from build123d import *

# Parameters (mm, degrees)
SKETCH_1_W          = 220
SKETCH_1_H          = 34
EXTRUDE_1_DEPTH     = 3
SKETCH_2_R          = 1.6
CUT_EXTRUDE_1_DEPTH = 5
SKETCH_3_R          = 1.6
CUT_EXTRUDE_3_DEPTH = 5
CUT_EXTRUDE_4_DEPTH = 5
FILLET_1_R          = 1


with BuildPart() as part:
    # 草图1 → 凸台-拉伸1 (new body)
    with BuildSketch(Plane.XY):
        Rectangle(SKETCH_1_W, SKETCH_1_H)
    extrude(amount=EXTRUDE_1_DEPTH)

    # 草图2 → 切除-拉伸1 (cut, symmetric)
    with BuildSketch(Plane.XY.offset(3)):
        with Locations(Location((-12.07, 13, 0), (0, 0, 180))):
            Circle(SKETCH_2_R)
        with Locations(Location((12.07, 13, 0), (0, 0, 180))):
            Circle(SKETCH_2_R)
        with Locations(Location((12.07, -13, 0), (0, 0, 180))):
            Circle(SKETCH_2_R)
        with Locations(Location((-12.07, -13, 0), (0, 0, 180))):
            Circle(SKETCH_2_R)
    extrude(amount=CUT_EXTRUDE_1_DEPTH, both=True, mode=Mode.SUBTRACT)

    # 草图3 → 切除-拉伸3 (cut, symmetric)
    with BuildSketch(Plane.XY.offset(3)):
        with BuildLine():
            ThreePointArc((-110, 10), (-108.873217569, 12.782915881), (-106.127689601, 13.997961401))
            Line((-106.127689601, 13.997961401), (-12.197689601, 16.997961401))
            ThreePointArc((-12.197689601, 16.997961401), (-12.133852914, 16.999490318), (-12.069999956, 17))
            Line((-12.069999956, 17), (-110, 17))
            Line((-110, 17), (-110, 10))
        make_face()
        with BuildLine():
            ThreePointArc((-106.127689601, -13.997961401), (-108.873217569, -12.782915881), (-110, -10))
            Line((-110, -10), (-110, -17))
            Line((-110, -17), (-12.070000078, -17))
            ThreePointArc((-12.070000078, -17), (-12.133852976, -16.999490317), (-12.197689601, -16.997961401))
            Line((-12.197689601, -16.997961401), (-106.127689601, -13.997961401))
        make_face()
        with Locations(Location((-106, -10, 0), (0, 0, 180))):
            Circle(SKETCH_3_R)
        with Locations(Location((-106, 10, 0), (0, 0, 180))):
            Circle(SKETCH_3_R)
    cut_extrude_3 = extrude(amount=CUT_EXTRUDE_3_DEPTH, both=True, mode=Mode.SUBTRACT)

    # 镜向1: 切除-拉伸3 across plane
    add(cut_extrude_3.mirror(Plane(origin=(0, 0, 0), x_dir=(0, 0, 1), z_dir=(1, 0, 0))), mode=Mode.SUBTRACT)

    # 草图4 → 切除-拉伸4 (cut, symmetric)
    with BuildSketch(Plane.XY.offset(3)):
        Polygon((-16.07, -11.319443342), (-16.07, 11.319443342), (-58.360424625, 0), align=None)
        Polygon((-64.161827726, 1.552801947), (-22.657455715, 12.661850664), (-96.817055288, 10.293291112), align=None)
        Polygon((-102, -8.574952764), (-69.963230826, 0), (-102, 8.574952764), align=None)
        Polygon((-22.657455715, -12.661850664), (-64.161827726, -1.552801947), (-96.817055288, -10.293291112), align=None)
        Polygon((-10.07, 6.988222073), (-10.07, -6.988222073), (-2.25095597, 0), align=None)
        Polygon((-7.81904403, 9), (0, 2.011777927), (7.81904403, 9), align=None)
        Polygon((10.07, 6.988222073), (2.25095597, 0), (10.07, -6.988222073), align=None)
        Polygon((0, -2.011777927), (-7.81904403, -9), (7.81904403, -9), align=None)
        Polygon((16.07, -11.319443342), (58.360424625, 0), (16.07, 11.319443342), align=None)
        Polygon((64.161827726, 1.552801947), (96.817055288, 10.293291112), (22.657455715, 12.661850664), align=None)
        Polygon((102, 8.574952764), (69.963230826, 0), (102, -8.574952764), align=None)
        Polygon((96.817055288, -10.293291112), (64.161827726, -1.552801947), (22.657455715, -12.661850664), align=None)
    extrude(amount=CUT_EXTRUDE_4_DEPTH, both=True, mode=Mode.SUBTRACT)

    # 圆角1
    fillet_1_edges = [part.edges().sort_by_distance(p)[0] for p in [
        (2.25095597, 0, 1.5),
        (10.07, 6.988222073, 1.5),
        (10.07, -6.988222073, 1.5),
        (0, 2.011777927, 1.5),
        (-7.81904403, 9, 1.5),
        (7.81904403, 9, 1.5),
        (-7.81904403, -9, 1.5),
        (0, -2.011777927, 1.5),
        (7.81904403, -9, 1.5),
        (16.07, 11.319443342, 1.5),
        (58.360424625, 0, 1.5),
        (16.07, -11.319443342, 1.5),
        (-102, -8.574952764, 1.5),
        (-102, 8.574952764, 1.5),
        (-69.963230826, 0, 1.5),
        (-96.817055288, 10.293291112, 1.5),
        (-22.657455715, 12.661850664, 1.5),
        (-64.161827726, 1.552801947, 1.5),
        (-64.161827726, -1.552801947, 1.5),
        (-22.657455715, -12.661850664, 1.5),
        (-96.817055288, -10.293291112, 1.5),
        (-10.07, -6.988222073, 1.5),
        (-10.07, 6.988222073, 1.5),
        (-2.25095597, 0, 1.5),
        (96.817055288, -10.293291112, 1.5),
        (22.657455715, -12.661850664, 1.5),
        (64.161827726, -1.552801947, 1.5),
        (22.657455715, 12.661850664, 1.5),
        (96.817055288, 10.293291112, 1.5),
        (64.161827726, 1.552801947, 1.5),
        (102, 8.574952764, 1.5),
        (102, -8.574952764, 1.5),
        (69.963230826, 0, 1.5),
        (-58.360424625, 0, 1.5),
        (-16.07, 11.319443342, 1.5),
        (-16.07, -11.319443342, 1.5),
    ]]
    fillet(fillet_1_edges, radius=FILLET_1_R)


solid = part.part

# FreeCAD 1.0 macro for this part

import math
import FreeCAD as App
import Part
import Sketcher


def edges_at(feature, points):
    """Names of the edges that pass closest to the given points."""
    edges = feature.Shape.Edges
    near = lambda p: min(range(len(edges)), key=lambda i: edges[i].distToShape(Part.Vertex(*p))[0])
    return sorted({f"Edge{near(p) + 1}" for p in points})

doc = App.newDocument("Part")
params = doc.addObject("Spreadsheet::Sheet", "Params")
for row, (alias, value) in enumerate([
    ("sketch1_width", "220 mm"),
    ("sketch1_height", "34 mm"),
    ("pad1_length", "3 mm"),
    ("sketch2_diameter", "3.2 mm"),
    ("pocket1_length", "10 mm"),
    ("sketch3_radius", "4 mm"),
    ("sketch3_diameter", "3.2 mm"),
    ("sketch3_height", "7 mm"),
    ("sketch3_width", "97.93 mm"),
    ("pocket2_length", "10 mm"),
    ("pocket3_length", "10 mm"),
    ("fillet_radius", "1 mm"),
], start=1):
    params.set(f"A{row}", alias)
    params.set(f"B{row}", "=" + value)
    params.setAlias(f"B{row}", alias)

body = doc.addObject("PartDesign::Body", "Body")

# Sketch on XY plane
sketch1 = doc.addObject("Sketcher::SketchObject", "Sketch")
body.addObject(sketch1)
sketch1.AttachmentSupport = (doc.XY_Plane, [""])
sketch1.MapMode = "FlatFace"
sketch1.addGeometry([
    Part.LineSegment(App.Vector(-110, 17, 0), App.Vector(-110, -17, 0)),
    Part.LineSegment(App.Vector(-110, -17, 0), App.Vector(110, -17, 0)),
    Part.LineSegment(App.Vector(110, -17, 0), App.Vector(110, 17, 0)),
    Part.LineSegment(App.Vector(110, 17, 0), App.Vector(-110, 17, 0)),
], False)
sketch1.addConstraint([
    Sketcher.Constraint("Coincident", 0, 2, 1, 1),
    Sketcher.Constraint("Coincident", 1, 2, 2, 1),
    Sketcher.Constraint("Coincident", 2, 2, 3, 1),
    Sketcher.Constraint("Coincident", 3, 2, 0, 1),
    Sketcher.Constraint("Vertical", 0),
    Sketcher.Constraint("Horizontal", 1),
    Sketcher.Constraint("Vertical", 2),
    Sketcher.Constraint("Horizontal", 3),
    Sketcher.Constraint("Symmetric", 0, 2, 2, 2, -1, 1),
    Sketcher.Constraint("DistanceX", 1, 1, 1, 2, 220.0),
    Sketcher.Constraint("DistanceY", 0, 2, 0, 1, 34.0),
])
sketch1.setExpression("Constraints[9]", "Params.sketch1_width")
sketch1.setExpression("Constraints[10]", "Params.sketch1_height")
pad1 = doc.addObject("PartDesign::Pad", "Pad")
body.addObject(pad1)
pad1.Profile = sketch1
pad1.setExpression("Length", "Params.pad1_length")

# Sketch on XY plane
sketch2 = doc.addObject("Sketcher::SketchObject", "Sketch001")
body.addObject(sketch2)
sketch2.AttachmentSupport = (doc.XY_Plane, [""])
sketch2.MapMode = "FlatFace"
sketch2.AttachmentOffset = App.Placement(App.Vector(0, 0, 3), App.Rotation())
sketch2.addGeometry([
    Part.Circle(App.Vector(-12.07, 13, 0), App.Vector(0, 0, 1), 1.6),
    Part.Circle(App.Vector(12.07, 13, 0), App.Vector(0, 0, 1), 1.6),
    Part.Circle(App.Vector(12.07, -13, 0), App.Vector(0, 0, 1), 1.6),
    Part.Circle(App.Vector(-12.07, -13, 0), App.Vector(0, 0, 1), 1.6),
], False)
sketch2.addConstraint([
    Sketcher.Constraint("Equal", 0, 1),
    Sketcher.Constraint("Equal", 1, 2),
    Sketcher.Constraint("Equal", 2, 3),
    Sketcher.Constraint("Symmetric", 0, 3, 2, 3, -1, 1),
    Sketcher.Constraint("Symmetric", 1, 3, 3, 3, -1, 1),
    Sketcher.Constraint("Symmetric", 0, 3, 1, 3, -2),
    Sketcher.Constraint("Diameter", 0, 3.2),
    Sketcher.Constraint("DistanceY", -1, 1, 0, 3, 13.0),
    Sketcher.Constraint("DistanceX", 0, 3, -1, 1, 12.07),
])
sketch2.setExpression("Constraints[6]", "Params.sketch2_diameter")
pocket1 = doc.addObject("PartDesign::Pocket", "Pocket")
body.addObject(pocket1)
pocket1.Profile = sketch2
pocket1.setExpression("Length", "Params.pocket1_length")
pocket1.Midplane = True

# Sketch on XY plane
sketch3 = doc.addObject("Sketcher::SketchObject", "Sketch002")
body.addObject(sketch3)
sketch3.AttachmentSupport = (doc.XY_Plane, [""])
sketch3.MapMode = "FlatFace"
sketch3.AttachmentOffset = App.Placement(App.Vector(0, 0, 3), App.Rotation())
sketch3.addGeometry([
    Part.ArcOfCircle(Part.Circle(App.Vector(-106, 10, 0), App.Vector(0, 0, 1), 4), math.radians(91.82933), math.radians(180)),  # 0
    Part.LineSegment(App.Vector(-106.12769, 13.997961, 0), App.Vector(-12.19769, 16.997961, 0)),  # 1
    Part.ArcOfCircle(Part.Circle(App.Vector(-12.07, 12.999999, 0), App.Vector(0, 0, 1), 4.000001), math.radians(90), math.radians(91.82933)),  # 2
    Part.LineSegment(App.Vector(-12.07, 17, 0), App.Vector(-110, 17, 0)),  # 3
    Part.LineSegment(App.Vector(-110, 17, 0), App.Vector(-110, 10, 0)),  # 4
    Part.ArcOfCircle(Part.Circle(App.Vector(-106, -10, 0), App.Vector(0, 0, 1), 4), math.radians(180), math.radians(268.17067)),  # 5
    Part.LineSegment(App.Vector(-110, -10, 0), App.Vector(-110, -17, 0)),  # 6
    Part.LineSegment(App.Vector(-110, -17, 0), App.Vector(-12.07, -17, 0)),  # 7
    Part.ArcOfCircle(Part.Circle(App.Vector(-12.07, -12.999999, 0), App.Vector(0, 0, 1), 4.000001), math.radians(-91.82933), math.radians(-90.000001)),  # 8
    Part.LineSegment(App.Vector(-12.19769, -16.997961, 0), App.Vector(-106.12769, -13.997961, 0)),  # 9
    Part.Circle(App.Vector(-106, -10, 0), App.Vector(0, 0, 1), 1.6),  # 10
    Part.Circle(App.Vector(-106, 10, 0), App.Vector(0, 0, 1), 1.6),  # 11
], False)
sketch3.addConstraint([
    Sketcher.Constraint("Tangent", 0, 1, 1, 1),
    Sketcher.Constraint("Tangent", 1, 2, 2, 2),
    Sketcher.Constraint("Tangent", 2, 1, 3, 1),
    Sketcher.Constraint("Coincident", 3, 2, 4, 1),
    Sketcher.Constraint("Tangent", 4, 2, 0, 2),
    Sketcher.Constraint("Tangent", 5, 1, 6, 1),
    Sketcher.Constraint("Coincident", 6, 2, 7, 1),
    Sketcher.Constraint("Tangent", 7, 2, 8, 2),
    Sketcher.Constraint("Tangent", 8, 1, 9, 1),
    Sketcher.Constraint("Tangent", 9, 2, 5, 2),
    Sketcher.Constraint("Horizontal", 3),
    Sketcher.Constraint("Vertical", 4),
    Sketcher.Constraint("Vertical", 6),
    Sketcher.Constraint("Horizontal", 7),
    Sketcher.Constraint("Coincident", 10, 3, 5, 3),
    Sketcher.Constraint("Coincident", 11, 3, 0, 3),
    Sketcher.Constraint("Equal", 0, 2),
    Sketcher.Constraint("Equal", 2, 5),
    Sketcher.Constraint("Equal", 5, 8),
    Sketcher.Constraint("Equal", 10, 11),
    Sketcher.Constraint("Symmetric", 0, 3, 5, 3, -1),
    Sketcher.Constraint("Symmetric", 2, 3, 8, 3, -1),
    Sketcher.Constraint("Radius", 0, 4.0),
    Sketcher.Constraint("Diameter", 10, 3.2),
    Sketcher.Constraint("DistanceY", 4, 2, 4, 1, 7.0),
    Sketcher.Constraint("DistanceX", 0, 3, -1, 1, 106.0),
    Sketcher.Constraint("DistanceY", -1, 1, 0, 3, 10.0),
    Sketcher.Constraint("DistanceX", 3, 2, 3, 1, 97.93),
])
sketch3.setExpression("Constraints[22]", "Params.sketch3_radius")
sketch3.setExpression("Constraints[23]", "Params.sketch3_diameter")
sketch3.setExpression("Constraints[24]", "Params.sketch3_height")
sketch3.setExpression("Constraints[27]", "Params.sketch3_width")
pocket2 = doc.addObject("PartDesign::Pocket", "Pocket001")
body.addObject(pocket2)
pocket2.Profile = sketch3
pocket2.setExpression("Length", "Params.pocket2_length")
pocket2.Midplane = True
doc.recompute()

mirrored = doc.addObject("PartDesign::Mirrored", "Mirrored")
body.addObject(mirrored)
mirrored.Originals = [pocket2]
mirrored.MirrorPlane = (doc.YZ_Plane, [""])
body.Tip = mirrored

# Sketch on XY plane
sketch4 = doc.addObject("Sketcher::SketchObject", "Sketch003")
body.addObject(sketch4)
sketch4.AttachmentSupport = (doc.XY_Plane, [""])
sketch4.MapMode = "FlatFace"
sketch4.AttachmentOffset = App.Placement(App.Vector(0, 0, 3), App.Rotation())
sketch4.addGeometry([
    Part.LineSegment(App.Vector(-16.07, -11.319443, 0), App.Vector(-16.07, 11.319443, 0)),  # 0
    Part.LineSegment(App.Vector(-16.07, 11.319443, 0), App.Vector(-58.360425, 0, 0)),  # 1
    Part.LineSegment(App.Vector(-58.360425, 0, 0), App.Vector(-16.07, -11.319443, 0)),  # 2
    Part.LineSegment(App.Vector(-64.161828, 1.552802, 0), App.Vector(-22.657456, 12.661851, 0)),  # 3
    Part.LineSegment(App.Vector(-22.657456, 12.661851, 0), App.Vector(-96.817055, 10.293291, 0)),  # 4
    Part.LineSegment(App.Vector(-96.817055, 10.293291, 0), App.Vector(-64.161828, 1.552802, 0)),  # 5
    Part.LineSegment(App.Vector(-102, -8.574953, 0), App.Vector(-69.963231, 0, 0)),  # 6
    Part.LineSegment(App.Vector(-69.963231, 0, 0), App.Vector(-102, 8.574953, 0)),  # 7
    Part.LineSegment(App.Vector(-102, 8.574953, 0), App.Vector(-102, -8.574953, 0)),  # 8
    Part.LineSegment(App.Vector(-22.657456, -12.661851, 0), App.Vector(-64.161828, -1.552802, 0)),  # 9
    Part.LineSegment(App.Vector(-64.161828, -1.552802, 0), App.Vector(-96.817055, -10.293291, 0)),  # 10
    Part.LineSegment(App.Vector(-96.817055, -10.293291, 0), App.Vector(-22.657456, -12.661851, 0)),  # 11
    Part.LineSegment(App.Vector(-10.07, 6.988222, 0), App.Vector(-10.07, -6.988222, 0)),  # 12
    Part.LineSegment(App.Vector(-10.07, -6.988222, 0), App.Vector(-2.250956, 0, 0)),  # 13
    Part.LineSegment(App.Vector(-2.250956, 0, 0), App.Vector(-10.07, 6.988222, 0)),  # 14
    Part.LineSegment(App.Vector(-7.819044, 9, 0), App.Vector(0, 2.011778, 0)),  # 15
    Part.LineSegment(App.Vector(0, 2.011778, 0), App.Vector(7.819044, 9, 0)),  # 16
    Part.LineSegment(App.Vector(7.819044, 9, 0), App.Vector(-7.819044, 9, 0)),  # 17
    Part.LineSegment(App.Vector(10.07, 6.988222, 0), App.Vector(2.250956, 0, 0)),  # 18
    Part.LineSegment(App.Vector(2.250956, 0, 0), App.Vector(10.07, -6.988222, 0)),  # 19
    Part.LineSegment(App.Vector(10.07, -6.988222, 0), App.Vector(10.07, 6.988222, 0)),  # 20
    Part.LineSegment(App.Vector(0, -2.011778, 0), App.Vector(-7.819044, -9, 0)),  # 21
    Part.LineSegment(App.Vector(-7.819044, -9, 0), App.Vector(7.819044, -9, 0)),  # 22
    Part.LineSegment(App.Vector(7.819044, -9, 0), App.Vector(0, -2.011778, 0)),  # 23
    Part.LineSegment(App.Vector(16.07, -11.319443, 0), App.Vector(58.360425, 0, 0)),  # 24
    Part.LineSegment(App.Vector(58.360425, 0, 0), App.Vector(16.07, 11.319443, 0)),  # 25
    Part.LineSegment(App.Vector(16.07, 11.319443, 0), App.Vector(16.07, -11.319443, 0)),  # 26
    Part.LineSegment(App.Vector(64.161828, 1.552802, 0), App.Vector(96.817055, 10.293291, 0)),  # 27
    Part.LineSegment(App.Vector(96.817055, 10.293291, 0), App.Vector(22.657456, 12.661851, 0)),  # 28
    Part.LineSegment(App.Vector(22.657456, 12.661851, 0), App.Vector(64.161828, 1.552802, 0)),  # 29
    Part.LineSegment(App.Vector(102, 8.574953, 0), App.Vector(69.963231, 0, 0)),  # 30
    Part.LineSegment(App.Vector(69.963231, 0, 0), App.Vector(102, -8.574953, 0)),  # 31
    Part.LineSegment(App.Vector(102, -8.574953, 0), App.Vector(102, 8.574953, 0)),  # 32
    Part.LineSegment(App.Vector(96.817055, -10.293291, 0), App.Vector(64.161828, -1.552802, 0)),  # 33
    Part.LineSegment(App.Vector(64.161828, -1.552802, 0), App.Vector(22.657456, -12.661851, 0)),  # 34
    Part.LineSegment(App.Vector(22.657456, -12.661851, 0), App.Vector(96.817055, -10.293291, 0)),  # 35
], False)
sketch4.addConstraint([
    Sketcher.Constraint("Coincident", 0, 2, 1, 1),
    Sketcher.Constraint("Coincident", 1, 2, 2, 1),
    Sketcher.Constraint("Coincident", 2, 2, 0, 1),
    Sketcher.Constraint("Coincident", 3, 2, 4, 1),
    Sketcher.Constraint("Coincident", 4, 2, 5, 1),
    Sketcher.Constraint("Coincident", 5, 2, 3, 1),
    Sketcher.Constraint("Coincident", 6, 2, 7, 1),
    Sketcher.Constraint("Coincident", 7, 2, 8, 1),
    Sketcher.Constraint("Coincident", 8, 2, 6, 1),
    Sketcher.Constraint("Coincident", 9, 2, 10, 1),
    Sketcher.Constraint("Coincident", 10, 2, 11, 1),
    Sketcher.Constraint("Coincident", 11, 2, 9, 1),
    Sketcher.Constraint("Coincident", 12, 2, 13, 1),
    Sketcher.Constraint("Coincident", 13, 2, 14, 1),
    Sketcher.Constraint("Coincident", 14, 2, 12, 1),
    Sketcher.Constraint("Coincident", 15, 2, 16, 1),
    Sketcher.Constraint("Coincident", 16, 2, 17, 1),
    Sketcher.Constraint("Coincident", 17, 2, 15, 1),
    Sketcher.Constraint("Coincident", 18, 2, 19, 1),
    Sketcher.Constraint("Coincident", 19, 2, 20, 1),
    Sketcher.Constraint("Coincident", 20, 2, 18, 1),
    Sketcher.Constraint("Coincident", 21, 2, 22, 1),
    Sketcher.Constraint("Coincident", 22, 2, 23, 1),
    Sketcher.Constraint("Coincident", 23, 2, 21, 1),
    Sketcher.Constraint("Coincident", 24, 2, 25, 1),
    Sketcher.Constraint("Coincident", 25, 2, 26, 1),
    Sketcher.Constraint("Coincident", 26, 2, 24, 1),
    Sketcher.Constraint("Coincident", 27, 2, 28, 1),
    Sketcher.Constraint("Coincident", 28, 2, 29, 1),
    Sketcher.Constraint("Coincident", 29, 2, 27, 1),
    Sketcher.Constraint("Coincident", 30, 2, 31, 1),
    Sketcher.Constraint("Coincident", 31, 2, 32, 1),
    Sketcher.Constraint("Coincident", 32, 2, 30, 1),
    Sketcher.Constraint("Coincident", 33, 2, 34, 1),
    Sketcher.Constraint("Coincident", 34, 2, 35, 1),
    Sketcher.Constraint("Coincident", 35, 2, 33, 1),
    Sketcher.Constraint("Vertical", 0),
    Sketcher.Constraint("Vertical", 8),
    Sketcher.Constraint("Vertical", 12),
    Sketcher.Constraint("Horizontal", 17),
    Sketcher.Constraint("Vertical", 20),
    Sketcher.Constraint("Horizontal", 22),
    Sketcher.Constraint("Vertical", 26),
    Sketcher.Constraint("Vertical", 32),
    Sketcher.Constraint("Symmetric", 13, 2, 18, 2, -1, 1),
    Sketcher.Constraint("Symmetric", 14, 2, 19, 2, -1, 1),
    Sketcher.Constraint("Symmetric", 16, 2, 21, 2, -1, 1),
    Sketcher.Constraint("Symmetric", 15, 2, 23, 2, -1, 1),
    Sketcher.Constraint("Symmetric", 1, 2, 24, 2, -1, 1),
    Sketcher.Constraint("Symmetric", 2, 2, 25, 2, -1, 1),
    Sketcher.Constraint("Symmetric", 10, 2, 27, 2, -1, 1),
    Sketcher.Constraint("Symmetric", 11, 2, 28, 2, -1, 1),
    Sketcher.Constraint("Symmetric", 9, 2, 29, 2, -1, 1),
    Sketcher.Constraint("Symmetric", 6, 2, 30, 2, -1, 1),
    Sketcher.Constraint("Symmetric", 7, 2, 31, 2, -1, 1),
    Sketcher.Constraint("Symmetric", 5, 2, 33, 2, -1, 1),
    Sketcher.Constraint("Symmetric", 3, 2, 34, 2, -1, 1),
    Sketcher.Constraint("Symmetric", 4, 2, 35, 2, -1, 1),
    Sketcher.Constraint("Symmetric", 4, 2, 27, 2, -2),
    Sketcher.Constraint("Symmetric", 3, 2, 28, 2, -2),
    Sketcher.Constraint("Symmetric", 5, 2, 29, 2, -2),
    Sketcher.Constraint("PointOnObject", 1, 2, -1),
    Sketcher.Constraint("PointOnObject", 6, 2, -1),
    Sketcher.Constraint("PointOnObject", 13, 2, -1),
    Sketcher.Constraint("PointOnObject", 15, 2, -2),
    Sketcher.Constraint("Parallel", 1, 3),
    Sketcher.Constraint("Parallel", 2, 5),
    Sketcher.Constraint("Parallel", 3, 6),
    Sketcher.Constraint("Parallel", 5, 7),
    Sketcher.Constraint("Parallel", 7, 9),
    Sketcher.Constraint("Parallel", 14, 15),
    Sketcher.Constraint("Parallel", 13, 16),
    Sketcher.Constraint("Parallel", 16, 18),
    Sketcher.Constraint("Parallel", 19, 23),
    Sketcher.Constraint("Parallel", 10, 24),
    Sketcher.Constraint("Parallel", 27, 30),
    Sketcher.Constraint("Horizontal", 12, 2, 19, 2),
    Sketcher.Constraint("Equal", 14, 15),
    Sketcher.Constraint("DistanceX", 7, 2, -1, 1, 102.0),
    Sketcher.Constraint("DistanceY", -1, 1, 16, 2, 9.0),
    Sketcher.Constraint("DistanceX", 2, 2, 12, 2, 6.0),
    Sketcher.Constraint("DistanceX", 0, 2, -1, 1, 16.07),
    Sketcher.Constraint("DistanceX", 17, 2, 17, 1, 15.638088),
    Sketcher.Constraint("DistanceY", -1, 1, 5, 2, 1.552802),
    Sketcher.Constraint("DistanceX", 4, 2, 3, 2, 74.1596),
    Sketcher.Constraint("DistanceY", 11, 2, 3, 2, 25.323701),
    Sketcher.Constraint("DistanceX", 3, 2, 13, 2, 20.4065),
    Sketcher.Constraint("Distance", 3, 42.96538),
    Sketcher.Constraint("DistanceY", 0, 1, 0, 2, 22.638887),
    Sketcher.Constraint("DistanceY", 8, 2, 8, 1, 17.149906),
    Sketcher.Constraint("DistanceY", 12, 2, 12, 1, 13.976444),
])
pocket3 = doc.addObject("PartDesign::Pocket", "Pocket002")
body.addObject(pocket3)
pocket3.Profile = sketch4
pocket3.setExpression("Length", "Params.pocket3_length")
pocket3.Midplane = True
doc.recompute()

fillet = doc.addObject("PartDesign::Fillet", "Fillet")
body.addObject(fillet)
fillet.Base = (pocket3, edges_at(pocket3, [
    (2.251, 0, 1.5),
    (10.07, 6.988, 1.5),
    (10.07, -6.988, 1.5),
    (0, 2.012, 1.5),
    (-7.819, 9, 1.5),
    (7.819, 9, 1.5),
    (-7.819, -9, 1.5),
    (0, -2.012, 1.5),
    (7.819, -9, 1.5),
    (16.07, 11.319, 1.5),
    (58.36, 0, 1.5),
    (16.07, -11.319, 1.5),
    (-102, -8.575, 1.5),
    (-102, 8.575, 1.5),
    (-69.963, 0, 1.5),
    (-96.817, 10.293, 1.5),
    (-22.657, 12.662, 1.5),
    (-64.162, 1.553, 1.5),
    (-64.162, -1.553, 1.5),
    (-22.657, -12.662, 1.5),
    (-96.817, -10.293, 1.5),
    (-10.07, -6.988, 1.5),
    (-10.07, 6.988, 1.5),
    (-2.251, 0, 1.5),
    (96.817, -10.293, 1.5),
    (22.657, -12.662, 1.5),
    (64.162, -1.553, 1.5),
    (22.657, 12.662, 1.5),
    (96.817, 10.293, 1.5),
    (64.162, 1.553, 1.5),
    (102, 8.575, 1.5),
    (102, -8.575, 1.5),
    (69.963, 0, 1.5),
    (-58.36, 0, 1.5),
    (-16.07, 11.319, 1.5),
    (-16.07, -11.319, 1.5),
]))
fillet.setExpression("Radius", "Params.fillet_radius")

doc.recompute()
